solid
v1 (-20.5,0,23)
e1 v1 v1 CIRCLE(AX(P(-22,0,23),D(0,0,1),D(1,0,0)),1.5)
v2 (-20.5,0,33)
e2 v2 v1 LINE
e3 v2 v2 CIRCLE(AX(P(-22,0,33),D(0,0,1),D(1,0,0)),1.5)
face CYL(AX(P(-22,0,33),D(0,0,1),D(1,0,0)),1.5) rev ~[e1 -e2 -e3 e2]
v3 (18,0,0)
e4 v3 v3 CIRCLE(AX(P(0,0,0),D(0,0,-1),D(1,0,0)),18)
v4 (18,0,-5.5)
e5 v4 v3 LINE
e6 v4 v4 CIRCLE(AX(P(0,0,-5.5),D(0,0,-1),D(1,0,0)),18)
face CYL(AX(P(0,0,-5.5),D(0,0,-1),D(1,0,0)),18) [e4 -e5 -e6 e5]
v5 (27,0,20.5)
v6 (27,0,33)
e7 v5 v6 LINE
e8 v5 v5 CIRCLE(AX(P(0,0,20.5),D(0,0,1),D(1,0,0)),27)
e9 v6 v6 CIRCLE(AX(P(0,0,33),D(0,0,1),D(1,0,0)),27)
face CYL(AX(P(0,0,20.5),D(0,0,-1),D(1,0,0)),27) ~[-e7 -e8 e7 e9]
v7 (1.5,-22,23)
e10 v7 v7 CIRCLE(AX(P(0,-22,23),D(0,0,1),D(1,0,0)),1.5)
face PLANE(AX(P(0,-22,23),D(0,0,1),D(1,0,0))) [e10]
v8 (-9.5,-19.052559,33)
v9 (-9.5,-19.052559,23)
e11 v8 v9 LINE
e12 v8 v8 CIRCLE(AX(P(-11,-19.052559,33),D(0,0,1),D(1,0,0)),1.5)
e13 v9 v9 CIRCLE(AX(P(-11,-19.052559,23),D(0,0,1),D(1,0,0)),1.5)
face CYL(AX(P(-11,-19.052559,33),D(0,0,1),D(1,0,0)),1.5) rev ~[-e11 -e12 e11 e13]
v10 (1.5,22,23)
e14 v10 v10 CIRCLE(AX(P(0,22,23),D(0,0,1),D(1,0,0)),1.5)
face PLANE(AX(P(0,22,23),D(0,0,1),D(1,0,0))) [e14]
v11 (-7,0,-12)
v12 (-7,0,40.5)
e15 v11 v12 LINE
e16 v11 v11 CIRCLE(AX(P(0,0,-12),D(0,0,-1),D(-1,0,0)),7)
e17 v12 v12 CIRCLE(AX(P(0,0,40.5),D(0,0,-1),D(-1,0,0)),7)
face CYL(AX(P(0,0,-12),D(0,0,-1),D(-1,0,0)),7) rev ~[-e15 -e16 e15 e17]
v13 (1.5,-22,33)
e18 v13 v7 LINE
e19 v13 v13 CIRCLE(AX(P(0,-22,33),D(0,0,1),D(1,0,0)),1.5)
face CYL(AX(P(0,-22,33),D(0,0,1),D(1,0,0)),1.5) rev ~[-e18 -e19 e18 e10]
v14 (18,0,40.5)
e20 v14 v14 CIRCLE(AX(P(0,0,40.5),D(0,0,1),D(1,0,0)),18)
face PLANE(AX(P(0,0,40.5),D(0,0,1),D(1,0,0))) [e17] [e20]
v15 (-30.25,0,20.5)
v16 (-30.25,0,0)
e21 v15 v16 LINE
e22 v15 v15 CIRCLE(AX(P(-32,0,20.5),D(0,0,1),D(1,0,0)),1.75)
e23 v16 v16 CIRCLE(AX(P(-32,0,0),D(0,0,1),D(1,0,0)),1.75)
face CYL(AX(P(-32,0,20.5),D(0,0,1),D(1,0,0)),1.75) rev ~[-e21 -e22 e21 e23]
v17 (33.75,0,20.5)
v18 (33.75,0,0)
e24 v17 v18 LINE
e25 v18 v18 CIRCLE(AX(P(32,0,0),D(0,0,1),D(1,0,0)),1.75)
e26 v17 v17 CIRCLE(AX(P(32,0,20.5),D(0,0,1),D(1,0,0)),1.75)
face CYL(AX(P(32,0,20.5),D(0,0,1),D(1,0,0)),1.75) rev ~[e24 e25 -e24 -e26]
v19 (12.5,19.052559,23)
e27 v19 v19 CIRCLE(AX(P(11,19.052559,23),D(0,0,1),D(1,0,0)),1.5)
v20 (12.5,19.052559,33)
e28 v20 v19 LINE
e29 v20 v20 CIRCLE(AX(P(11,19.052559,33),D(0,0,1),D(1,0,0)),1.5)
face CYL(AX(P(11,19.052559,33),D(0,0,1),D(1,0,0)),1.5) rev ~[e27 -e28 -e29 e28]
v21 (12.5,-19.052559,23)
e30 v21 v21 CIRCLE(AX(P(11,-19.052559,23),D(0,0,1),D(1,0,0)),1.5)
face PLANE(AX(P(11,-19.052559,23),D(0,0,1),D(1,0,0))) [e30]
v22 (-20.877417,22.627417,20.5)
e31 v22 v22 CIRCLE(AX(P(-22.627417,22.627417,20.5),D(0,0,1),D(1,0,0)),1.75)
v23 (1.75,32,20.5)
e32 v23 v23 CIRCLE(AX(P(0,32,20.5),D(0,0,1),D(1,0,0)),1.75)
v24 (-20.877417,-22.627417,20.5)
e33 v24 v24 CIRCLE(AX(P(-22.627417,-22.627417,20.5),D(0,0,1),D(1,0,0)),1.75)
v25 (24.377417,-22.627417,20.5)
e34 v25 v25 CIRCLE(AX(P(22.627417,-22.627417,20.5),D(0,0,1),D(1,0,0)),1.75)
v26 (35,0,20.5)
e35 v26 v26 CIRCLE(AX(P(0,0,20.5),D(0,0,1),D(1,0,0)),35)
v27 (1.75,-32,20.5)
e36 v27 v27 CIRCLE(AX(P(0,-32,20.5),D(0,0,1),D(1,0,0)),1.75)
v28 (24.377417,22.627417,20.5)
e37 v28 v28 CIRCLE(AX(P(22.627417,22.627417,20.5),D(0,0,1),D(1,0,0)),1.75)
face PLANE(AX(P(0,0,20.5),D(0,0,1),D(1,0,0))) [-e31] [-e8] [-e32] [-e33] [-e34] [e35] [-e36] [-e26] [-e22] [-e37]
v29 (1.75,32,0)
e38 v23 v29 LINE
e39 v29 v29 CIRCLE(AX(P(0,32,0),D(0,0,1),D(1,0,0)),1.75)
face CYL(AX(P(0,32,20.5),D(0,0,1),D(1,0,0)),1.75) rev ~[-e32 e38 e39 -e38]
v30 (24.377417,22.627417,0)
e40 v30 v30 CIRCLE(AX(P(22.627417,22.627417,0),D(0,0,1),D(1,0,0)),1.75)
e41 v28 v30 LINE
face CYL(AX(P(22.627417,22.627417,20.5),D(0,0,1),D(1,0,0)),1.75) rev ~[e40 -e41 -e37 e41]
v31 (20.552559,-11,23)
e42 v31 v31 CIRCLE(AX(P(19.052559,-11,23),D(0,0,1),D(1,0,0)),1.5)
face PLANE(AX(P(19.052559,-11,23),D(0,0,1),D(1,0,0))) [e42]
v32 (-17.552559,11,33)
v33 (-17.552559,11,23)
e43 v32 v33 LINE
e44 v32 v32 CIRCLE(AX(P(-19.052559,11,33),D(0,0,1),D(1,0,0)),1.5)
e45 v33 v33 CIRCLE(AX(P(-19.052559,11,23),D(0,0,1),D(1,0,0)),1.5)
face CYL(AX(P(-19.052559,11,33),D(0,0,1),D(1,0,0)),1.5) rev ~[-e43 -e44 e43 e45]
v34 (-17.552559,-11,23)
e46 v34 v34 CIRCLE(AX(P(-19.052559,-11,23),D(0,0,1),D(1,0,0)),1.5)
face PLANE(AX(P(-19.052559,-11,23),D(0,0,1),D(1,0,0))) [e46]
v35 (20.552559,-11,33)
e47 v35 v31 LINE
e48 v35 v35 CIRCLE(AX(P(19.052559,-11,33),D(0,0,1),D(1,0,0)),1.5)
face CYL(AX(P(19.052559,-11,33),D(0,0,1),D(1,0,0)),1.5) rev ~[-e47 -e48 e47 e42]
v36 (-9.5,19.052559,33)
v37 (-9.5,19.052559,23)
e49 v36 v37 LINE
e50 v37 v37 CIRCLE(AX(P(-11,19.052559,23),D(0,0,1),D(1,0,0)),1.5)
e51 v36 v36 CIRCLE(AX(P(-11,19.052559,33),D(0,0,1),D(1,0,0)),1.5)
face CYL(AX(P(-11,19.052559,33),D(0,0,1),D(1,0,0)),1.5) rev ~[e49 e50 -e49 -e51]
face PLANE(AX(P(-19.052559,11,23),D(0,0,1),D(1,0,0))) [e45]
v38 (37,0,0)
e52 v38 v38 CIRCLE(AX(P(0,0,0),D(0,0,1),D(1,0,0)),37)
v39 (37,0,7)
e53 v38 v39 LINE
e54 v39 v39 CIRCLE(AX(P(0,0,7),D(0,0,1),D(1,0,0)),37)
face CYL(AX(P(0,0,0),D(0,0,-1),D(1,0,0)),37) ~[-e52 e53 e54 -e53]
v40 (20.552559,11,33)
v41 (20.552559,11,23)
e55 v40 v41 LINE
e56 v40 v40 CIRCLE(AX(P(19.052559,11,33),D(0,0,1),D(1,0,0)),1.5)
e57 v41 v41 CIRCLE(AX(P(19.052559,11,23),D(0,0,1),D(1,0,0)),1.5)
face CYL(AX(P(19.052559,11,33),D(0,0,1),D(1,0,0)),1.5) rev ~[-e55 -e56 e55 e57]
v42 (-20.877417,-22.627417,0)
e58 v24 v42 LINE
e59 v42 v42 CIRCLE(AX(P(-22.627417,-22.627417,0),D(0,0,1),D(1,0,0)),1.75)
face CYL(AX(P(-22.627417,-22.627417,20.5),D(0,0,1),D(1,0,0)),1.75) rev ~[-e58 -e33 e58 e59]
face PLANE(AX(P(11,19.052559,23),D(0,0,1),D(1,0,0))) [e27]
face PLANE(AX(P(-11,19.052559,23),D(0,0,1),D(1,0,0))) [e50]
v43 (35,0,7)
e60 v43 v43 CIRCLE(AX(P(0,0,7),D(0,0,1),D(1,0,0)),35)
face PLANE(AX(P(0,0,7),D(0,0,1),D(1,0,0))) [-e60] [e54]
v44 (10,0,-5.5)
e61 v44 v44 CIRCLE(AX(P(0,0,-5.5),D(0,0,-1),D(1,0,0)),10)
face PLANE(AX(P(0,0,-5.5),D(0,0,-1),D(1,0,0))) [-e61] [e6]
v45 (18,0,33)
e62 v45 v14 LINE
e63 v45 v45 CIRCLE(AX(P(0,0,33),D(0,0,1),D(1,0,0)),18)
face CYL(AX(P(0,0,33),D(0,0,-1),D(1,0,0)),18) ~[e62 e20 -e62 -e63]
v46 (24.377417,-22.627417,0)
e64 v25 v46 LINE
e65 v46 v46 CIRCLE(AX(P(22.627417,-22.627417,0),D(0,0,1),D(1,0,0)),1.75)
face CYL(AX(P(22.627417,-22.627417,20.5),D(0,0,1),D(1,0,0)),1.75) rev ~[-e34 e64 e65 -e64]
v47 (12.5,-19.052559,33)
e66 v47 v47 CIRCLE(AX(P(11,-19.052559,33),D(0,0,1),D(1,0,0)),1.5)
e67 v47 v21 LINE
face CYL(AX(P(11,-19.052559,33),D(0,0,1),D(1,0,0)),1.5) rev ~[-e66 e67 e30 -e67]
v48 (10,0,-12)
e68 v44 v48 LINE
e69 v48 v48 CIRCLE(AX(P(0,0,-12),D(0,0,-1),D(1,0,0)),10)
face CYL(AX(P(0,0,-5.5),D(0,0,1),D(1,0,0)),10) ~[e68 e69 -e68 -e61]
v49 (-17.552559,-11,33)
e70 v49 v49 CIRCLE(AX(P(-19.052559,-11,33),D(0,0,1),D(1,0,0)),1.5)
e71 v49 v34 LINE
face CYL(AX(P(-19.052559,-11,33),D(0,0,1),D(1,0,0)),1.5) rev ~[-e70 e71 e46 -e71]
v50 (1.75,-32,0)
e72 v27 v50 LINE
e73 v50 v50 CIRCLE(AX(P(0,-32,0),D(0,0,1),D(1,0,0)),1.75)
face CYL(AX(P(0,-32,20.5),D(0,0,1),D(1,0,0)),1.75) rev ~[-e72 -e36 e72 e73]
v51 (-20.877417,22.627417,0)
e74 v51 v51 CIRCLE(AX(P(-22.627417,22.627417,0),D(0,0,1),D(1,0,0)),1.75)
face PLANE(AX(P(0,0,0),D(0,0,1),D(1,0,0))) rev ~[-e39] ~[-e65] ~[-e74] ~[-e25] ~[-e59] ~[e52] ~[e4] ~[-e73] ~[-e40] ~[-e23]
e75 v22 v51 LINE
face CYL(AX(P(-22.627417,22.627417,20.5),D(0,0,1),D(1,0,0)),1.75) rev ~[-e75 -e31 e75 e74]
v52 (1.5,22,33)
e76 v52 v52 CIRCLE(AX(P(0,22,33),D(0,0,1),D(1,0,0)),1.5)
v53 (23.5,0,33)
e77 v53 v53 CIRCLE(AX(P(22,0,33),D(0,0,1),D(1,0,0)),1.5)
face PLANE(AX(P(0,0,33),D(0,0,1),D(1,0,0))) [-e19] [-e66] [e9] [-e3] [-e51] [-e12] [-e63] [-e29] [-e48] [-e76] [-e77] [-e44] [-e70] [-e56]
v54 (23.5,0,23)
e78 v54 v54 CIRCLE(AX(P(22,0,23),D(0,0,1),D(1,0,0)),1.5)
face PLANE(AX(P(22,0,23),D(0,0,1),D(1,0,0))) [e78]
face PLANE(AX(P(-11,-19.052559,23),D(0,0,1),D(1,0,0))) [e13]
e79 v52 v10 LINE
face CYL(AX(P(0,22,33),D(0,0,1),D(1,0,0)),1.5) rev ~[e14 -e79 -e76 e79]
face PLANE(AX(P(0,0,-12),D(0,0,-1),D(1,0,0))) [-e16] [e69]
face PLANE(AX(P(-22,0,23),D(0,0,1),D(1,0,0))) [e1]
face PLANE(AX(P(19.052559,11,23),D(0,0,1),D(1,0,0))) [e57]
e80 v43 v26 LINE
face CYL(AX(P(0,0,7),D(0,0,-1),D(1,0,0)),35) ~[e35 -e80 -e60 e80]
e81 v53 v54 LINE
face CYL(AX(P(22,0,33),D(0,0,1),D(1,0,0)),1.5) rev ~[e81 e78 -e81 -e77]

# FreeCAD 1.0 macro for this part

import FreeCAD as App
import Part
import Sketcher
from FreeCAD import Vector
Q = App.Units.Quantity

doc = App.newDocument("Part")
body = doc.addObject("PartDesign::Body", "Body")

# Sketch on XY plane
sketch1 = body.newObject("Sketcher::SketchObject", "Sketch")
sketch1.AttachmentSupport = (doc.getObject("XY_Plane"), [""])
sketch1.MapMode = "FlatFace"
sketch1.addGeometry(Part.Circle(Vector(0, 0, 0), Vector(0, 0, 1), 37), False)
sketch1.addConstraint(Sketcher.Constraint("Coincident", 0, 3, -1, 1))
sketch1.addConstraint(Sketcher.Constraint("Diameter", 0, Q("74 mm")))
pad1 = body.newObject("PartDesign::Pad", "Pad")
pad1.Profile = sketch1
pad1.Length = 7

# Sketch on XY plane
sketch2 = body.newObject("Sketcher::SketchObject", "Sketch001")
sketch2.AttachmentSupport = (doc.getObject("XY_Plane"), [""])
sketch2.MapMode = "FlatFace"
sketch2.AttachmentOffset = App.Placement(Vector(0, 0, 7), App.Rotation())
sketch2.addGeometry(Part.Circle(Vector(0, 0, 0), Vector(0, 0, 1), 35), False)
sketch2.addConstraint(Sketcher.Constraint("Coincident", 0, 3, -1, 1))
sketch2.addConstraint(Sketcher.Constraint("Diameter", 0, Q("70 mm")))
pad2 = body.newObject("PartDesign::Pad", "Pad001")
pad2.Profile = sketch2
pad2.Length = 13.5

# Sketch on XY plane
sketch3 = body.newObject("Sketcher::SketchObject", "Sketch002")
sketch3.AttachmentSupport = (doc.getObject("XY_Plane"), [""])
sketch3.MapMode = "FlatFace"
sketch3.AttachmentOffset = App.Placement(Vector(0, 0, 20.5), App.Rotation())
sketch3.addGeometry(Part.Circle(Vector(0, 0, 0), Vector(0, 0, 1), 27), False)
sketch3.addConstraint(Sketcher.Constraint("Coincident", 0, 3, -1, 1))
sketch3.addConstraint(Sketcher.Constraint("Diameter", 0, Q("54 mm")))
pad3 = body.newObject("PartDesign::Pad", "Pad002")
pad3.Profile = sketch3
pad3.Length = 12.5

# Sketch on XY plane
sketch4 = body.newObject("Sketcher::SketchObject", "Sketch003")
sketch4.AttachmentSupport = (doc.getObject("XY_Plane"), [""])
sketch4.MapMode = "FlatFace"
sketch4.AttachmentOffset = App.Placement(Vector(0, 0, 33), App.Rotation())
sketch4.addGeometry(Part.Circle(Vector(0, 0, 0), Vector(0, 0, 1), 18), False)
sketch4.addConstraint(Sketcher.Constraint("Coincident", 0, 3, -1, 1))
sketch4.addConstraint(Sketcher.Constraint("Diameter", 0, Q("36 mm")))
pad4 = body.newObject("PartDesign::Pad", "Pad003")
pad4.Profile = sketch4
pad4.Length = 7.5

# Sketch on XY plane
sketch5 = body.newObject("Sketcher::SketchObject", "Sketch004")
sketch5.AttachmentSupport = (doc.getObject("XY_Plane"), [""])
sketch5.MapMode = "FlatFace"
sketch5.AttachmentOffset = App.Placement(Vector(0, 0, -5.5), App.Rotation())
sketch5.addGeometry(Part.Circle(Vector(0, 0, 0), Vector(0, 0, 1), 18), False)
sketch5.addConstraint(Sketcher.Constraint("Coincident", 0, 3, -1, 1))
sketch5.addConstraint(Sketcher.Constraint("Diameter", 0, Q("36 mm")))
pad5 = body.newObject("PartDesign::Pad", "Pad004")
pad5.Profile = sketch5
pad5.Length = 5.5

# Sketch on XY plane
sketch6 = body.newObject("Sketcher::SketchObject", "Sketch005")
sketch6.AttachmentSupport = (doc.getObject("XY_Plane"), [""])
sketch6.MapMode = "FlatFace"
sketch6.AttachmentOffset = App.Placement(Vector(0, 0, -5.5), App.Rotation())
sketch6.addGeometry(Part.Circle(Vector(0, 0, 0), Vector(0, 0, 1), 10), False)
sketch6.addConstraint(Sketcher.Constraint("Coincident", 0, 3, -1, 1))
sketch6.addConstraint(Sketcher.Constraint("Diameter", 0, Q("20 mm")))
pad6 = body.newObject("PartDesign::Pad", "Pad005")
pad6.Profile = sketch6
pad6.Length = 6.5
pad6.Reversed = True

# Sketch on XY plane
sketch7 = body.newObject("Sketcher::SketchObject", "Sketch006")
sketch7.AttachmentSupport = (doc.getObject("XY_Plane"), [""])
sketch7.MapMode = "FlatFace"
sketch7.AttachmentOffset = App.Placement(Vector(0, 0, -12), App.Rotation())
sketch7.addGeometry(Part.Circle(Vector(0, 0, 0), Vector(0, 0, 1), 7), False)
sketch7.addConstraint(Sketcher.Constraint("Coincident", 0, 3, -1, 1))
sketch7.addConstraint(Sketcher.Constraint("Diameter", 0, Q("14 mm")))
pocket1 = body.newObject("PartDesign::Pocket", "Pocket")
pocket1.Profile = sketch7
pocket1.Length = 52.5
pocket1.Reversed = True

# Sketch on XY plane
sketch8 = body.newObject("Sketcher::SketchObject", "Sketch007")
sketch8.AttachmentSupport = (doc.getObject("XY_Plane"), [""])
sketch8.MapMode = "FlatFace"
sketch8.AttachmentOffset = App.Placement(Vector(0, 0, 20.5), App.Rotation())
sketch8.addGeometry(Part.Circle(Vector(0, 32, 0), Vector(0, 0, 1), 1.8), False)
sketch8.addGeometry(Part.Circle(Vector(22.6, 22.6, 0), Vector(0, 0, 1), 1.8), False)
sketch8.addGeometry(Part.Circle(Vector(32, 0, 0), Vector(0, 0, 1), 1.8), False)
sketch8.addGeometry(Part.Circle(Vector(22.6, -22.6, 0), Vector(0, 0, 1), 1.8), False)
sketch8.addGeometry(Part.Circle(Vector(0, -32, 0), Vector(0, 0, 1), 1.8), False)
sketch8.addGeometry(Part.Circle(Vector(-22.6, -22.6, 0), Vector(0, 0, 1), 1.8), False)
sketch8.addGeometry(Part.Circle(Vector(-32, 0, 0), Vector(0, 0, 1), 1.8), False)
sketch8.addGeometry(Part.Circle(Vector(-22.6, 22.6, 0), Vector(0, 0, 1), 1.8), False)
sketch8.addConstraint(Sketcher.Constraint("Equal", 0, 1))
sketch8.addConstraint(Sketcher.Constraint("Equal", 1, 2))
sketch8.addConstraint(Sketcher.Constraint("Equal", 2, 3))
sketch8.addConstraint(Sketcher.Constraint("Equal", 3, 4))
sketch8.addConstraint(Sketcher.Constraint("Equal", 4, 5))
sketch8.addConstraint(Sketcher.Constraint("Equal", 5, 6))
sketch8.addConstraint(Sketcher.Constraint("Equal", 6, 7))
sketch8.addConstraint(Sketcher.Constraint("Symmetric", 0, 3, 4, 3, -1, 1))
sketch8.addConstraint(Sketcher.Constraint("Symmetric", 1, 3, 5, 3, -1, 1))
sketch8.addConstraint(Sketcher.Constraint("Symmetric", 2, 3, 6, 3, -1, 1))
sketch8.addConstraint(Sketcher.Constraint("Symmetric", 3, 3, 7, 3, -1, 1))
sketch8.addConstraint(Sketcher.Constraint("Symmetric", 3, 3, 5, 3, -2))
sketch8.addConstraint(Sketcher.Constraint("PointOnObject", 0, 3, -2))
sketch8.addConstraint(Sketcher.Constraint("PointOnObject", 2, 3, -1))
sketch8.addConstraint(Sketcher.Constraint("Diameter", 0, Q("3.5 mm")))
sketch8.addConstraint(Sketcher.Constraint("DistanceY", -1, 1, 0, 3, Q("32 mm")))
sketch8.addConstraint(Sketcher.Constraint("DistanceX", -1, 1, 2, 3, Q("32 mm")))
sketch8.addConstraint(Sketcher.Constraint("DistanceX", -1, 1, 1, 3, Q("22.627417 mm")))
sketch8.addConstraint(Sketcher.Constraint("DistanceY", -1, 1, 1, 3, Q("22.627417 mm")))
pocket2 = body.newObject("PartDesign::Pocket", "Pocket001")
pocket2.Profile = sketch8
pocket2.Length = 20.5

# Sketch on XY plane
sketch9 = body.newObject("Sketcher::SketchObject", "Sketch008")
sketch9.AttachmentSupport = (doc.getObject("XY_Plane"), [""])
sketch9.MapMode = "FlatFace"
sketch9.AttachmentOffset = App.Placement(Vector(0, 0, 33), App.Rotation())
sketch9.addGeometry(Part.Circle(Vector(0, 22, 0), Vector(0, 0, 1), 1.5), False)
sketch9.addGeometry(Part.Circle(Vector(11, 19.1, 0), Vector(0, 0, 1), 1.5), False)
sketch9.addGeometry(Part.Circle(Vector(19.1, 11, 0), Vector(0, 0, 1), 1.5), False)
sketch9.addGeometry(Part.Circle(Vector(22, 0, 0), Vector(0, 0, 1), 1.5), False)
sketch9.addGeometry(Part.Circle(Vector(19.1, -11, 0), Vector(0, 0, 1), 1.5), False)
sketch9.addGeometry(Part.Circle(Vector(11, -19.1, 0), Vector(0, 0, 1), 1.5), False)
sketch9.addGeometry(Part.Circle(Vector(0, -22, 0), Vector(0, 0, 1), 1.5), False)
sketch9.addGeometry(Part.Circle(Vector(-11, -19.1, 0), Vector(0, 0, 1), 1.5), False)
sketch9.addGeometry(Part.Circle(Vector(-19.1, -11, 0), Vector(0, 0, 1), 1.5), False)
sketch9.addGeometry(Part.Circle(Vector(-22, 0, 0), Vector(0, 0, 1), 1.5), False)
sketch9.addGeometry(Part.Circle(Vector(-19.1, 11, 0), Vector(0, 0, 1), 1.5), False)
sketch9.addGeometry(Part.Circle(Vector(-11, 19.1, 0), Vector(0, 0, 1), 1.5), False)
sketch9.addConstraint(Sketcher.Constraint("Equal", 0, 1))
sketch9.addConstraint(Sketcher.Constraint("Equal", 1, 2))
sketch9.addConstraint(Sketcher.Constraint("Equal", 2, 3))
sketch9.addConstraint(Sketcher.Constraint("Equal", 3, 4))
sketch9.addConstraint(Sketcher.Constraint("Equal", 4, 5))
sketch9.addConstraint(Sketcher.Constraint("Equal", 5, 6))
sketch9.addConstraint(Sketcher.Constraint("Equal", 6, 7))
sketch9.addConstraint(Sketcher.Constraint("Equal", 7, 8))
sketch9.addConstraint(Sketcher.Constraint("Equal", 8, 9))
sketch9.addConstraint(Sketcher.Constraint("Equal", 9, 10))
sketch9.addConstraint(Sketcher.Constraint("Equal", 10, 11))
sketch9.addConstraint(Sketcher.Constraint("Symmetric", 0, 3, 6, 3, -1, 1))
sketch9.addConstraint(Sketcher.Constraint("Symmetric", 1, 3, 7, 3, -1, 1))
sketch9.addConstraint(Sketcher.Constraint("Symmetric", 2, 3, 8, 3, -1, 1))
sketch9.addConstraint(Sketcher.Constraint("Symmetric", 3, 3, 9, 3, -1, 1))
sketch9.addConstraint(Sketcher.Constraint("Symmetric", 4, 3, 10, 3, -1, 1))
sketch9.addConstraint(Sketcher.Constraint("Symmetric", 5, 3, 11, 3, -1, 1))
sketch9.addConstraint(Sketcher.Constraint("Symmetric", 5, 3, 7, 3, -2))
sketch9.addConstraint(Sketcher.Constraint("Symmetric", 4, 3, 8, 3, -2))
sketch9.addConstraint(Sketcher.Constraint("PointOnObject", 0, 3, -2))
sketch9.addConstraint(Sketcher.Constraint("PointOnObject", 3, 3, -1))
sketch9.addConstraint(Sketcher.Constraint("Diameter", 0, Q("3 mm")))
sketch9.addConstraint(Sketcher.Constraint("DistanceY", -1, 1, 0, 3, Q("22 mm")))
sketch9.addConstraint(Sketcher.Constraint("DistanceX", -1, 1, 1, 3, Q("11 mm")))
sketch9.addConstraint(Sketcher.Constraint("DistanceY", -1, 1, 2, 3, Q("11 mm")))
sketch9.addConstraint(Sketcher.Constraint("DistanceX", -1, 1, 3, 3, Q("22 mm")))
sketch9.addConstraint(Sketcher.Constraint("DistanceY", -1, 1, 1, 3, Q("19.052559 mm")))
sketch9.addConstraint(Sketcher.Constraint("DistanceX", -1, 1, 2, 3, Q("19.052559 mm")))
pocket3 = body.newObject("PartDesign::Pocket", "Pocket002")
pocket3.Profile = sketch9
pocket3.Length = 10

doc.recompute()
